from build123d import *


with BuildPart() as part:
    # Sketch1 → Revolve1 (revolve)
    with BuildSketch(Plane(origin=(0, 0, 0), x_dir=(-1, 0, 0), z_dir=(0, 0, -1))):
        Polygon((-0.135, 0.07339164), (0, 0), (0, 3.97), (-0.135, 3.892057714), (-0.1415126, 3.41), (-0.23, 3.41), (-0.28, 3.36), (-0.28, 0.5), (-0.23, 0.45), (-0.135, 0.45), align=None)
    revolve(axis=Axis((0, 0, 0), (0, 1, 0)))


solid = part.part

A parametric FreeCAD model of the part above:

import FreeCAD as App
import Part
import Sketcher

V = App.Vector
Q = App.Units.Quantity

doc = App.newDocument("Part")
body = doc.addObject("PartDesign::Body", "Body")

sketch1 = body.newObject("Sketcher::SketchObject", "Sketch")
sketch1.AttachmentSupport = (doc.getObject("XY_Plane"), [""])
sketch1.MapMode = "FlatFace"
sketch1.addGeometry([
    Part.LineSegment(V(0.135, 0.073392, 0), V(0, 0, 0)),
    Part.LineSegment(V(0, 0, 0), V(0, 3.97, 0)),
    Part.LineSegment(V(0, 3.97, 0), V(0.135, 3.892058, 0)),
    Part.LineSegment(V(0.135, 3.892058, 0), V(0.141513, 3.41, 0)),
    Part.LineSegment(V(0.141513, 3.41, 0), V(0.23, 3.41, 0)),
    Part.LineSegment(V(0.23, 3.41, 0), V(0.28, 3.36, 0)),
    Part.LineSegment(V(0.28, 3.36, 0), V(0.28, 0.5, 0)),
    Part.LineSegment(V(0.28, 0.5, 0), V(0.23, 0.45, 0)),
    Part.LineSegment(V(0.23, 0.45, 0), V(0.135, 0.45, 0)),
    Part.LineSegment(V(0.135, 0.45, 0), V(0.135, 0.073392, 0)),
], False)
sketch1.addConstraint([
    Sketcher.Constraint("Coincident", 0, 2, 1, 1),
    Sketcher.Constraint("Coincident", 1, 2, 2, 1),
    Sketcher.Constraint("Coincident", 2, 2, 3, 1),
    Sketcher.Constraint("Coincident", 3, 2, 4, 1),
    Sketcher.Constraint("Coincident", 4, 2, 5, 1),
    Sketcher.Constraint("Coincident", 5, 2, 6, 1),
    Sketcher.Constraint("Coincident", 6, 2, 7, 1),
    Sketcher.Constraint("Coincident", 7, 2, 8, 1),
    Sketcher.Constraint("Coincident", 8, 2, 9, 1),
    Sketcher.Constraint("Coincident", 9, 2, 0, 1),
    Sketcher.Constraint("Vertical", 1),
    Sketcher.Constraint("Horizontal", 4),
    Sketcher.Constraint("Vertical", 6),
    Sketcher.Constraint("Horizontal", 8),
    Sketcher.Constraint("Vertical", 9),
    Sketcher.Constraint("Coincident", 0, 2, -1, 1),
    Sketcher.Constraint("DistanceY", 1, 1, 1, 2, Q("3.97 mm")),
    Sketcher.Constraint("DistanceY", 6, 2, 6, 1, Q("2.86 mm")),
    Sketcher.Constraint("DistanceY", -1, 1, 6, 2, Q("0.5 mm")),
    Sketcher.Constraint("DistanceX", 8, 2, 8, 1, Q("0.095 mm")),
    Sketcher.Constraint("DistanceY", -1, 1, 3, 2, Q("3.41 mm")),
    Sketcher.Constraint("DistanceX", -1, 1, 4, 2, Q("0.23 mm")),
    Sketcher.Constraint("DistanceX", -1, 1, 5, 2, Q("0.28 mm")),
    Sketcher.Constraint("DistanceX", -1, 1, 7, 2, Q("0.23 mm")),
    Sketcher.Constraint("DistanceY", -1, 1, 7, 2, Q("0.45 mm")),
    Sketcher.Constraint("DistanceX", -1, 1, 2, 2, Q("0.135 mm")),
    Sketcher.Constraint("Distance", 3, Q("0.482102 mm")),
    Sketcher.Constraint("DistanceY", 9, 2, 9, 1, Q("0.376608 mm")),
    Sketcher.Constraint("DistanceX", 4, 1, 4, 2, Q("0.088487 mm")),
])
revolution = body.newObject("PartDesign::Revolution", "Revolution")
revolution.Profile = sketch1
revolution.ReferenceAxis = (sketch1, ["V_Axis"])
revolution.Angle = 360

doc.recompute()
